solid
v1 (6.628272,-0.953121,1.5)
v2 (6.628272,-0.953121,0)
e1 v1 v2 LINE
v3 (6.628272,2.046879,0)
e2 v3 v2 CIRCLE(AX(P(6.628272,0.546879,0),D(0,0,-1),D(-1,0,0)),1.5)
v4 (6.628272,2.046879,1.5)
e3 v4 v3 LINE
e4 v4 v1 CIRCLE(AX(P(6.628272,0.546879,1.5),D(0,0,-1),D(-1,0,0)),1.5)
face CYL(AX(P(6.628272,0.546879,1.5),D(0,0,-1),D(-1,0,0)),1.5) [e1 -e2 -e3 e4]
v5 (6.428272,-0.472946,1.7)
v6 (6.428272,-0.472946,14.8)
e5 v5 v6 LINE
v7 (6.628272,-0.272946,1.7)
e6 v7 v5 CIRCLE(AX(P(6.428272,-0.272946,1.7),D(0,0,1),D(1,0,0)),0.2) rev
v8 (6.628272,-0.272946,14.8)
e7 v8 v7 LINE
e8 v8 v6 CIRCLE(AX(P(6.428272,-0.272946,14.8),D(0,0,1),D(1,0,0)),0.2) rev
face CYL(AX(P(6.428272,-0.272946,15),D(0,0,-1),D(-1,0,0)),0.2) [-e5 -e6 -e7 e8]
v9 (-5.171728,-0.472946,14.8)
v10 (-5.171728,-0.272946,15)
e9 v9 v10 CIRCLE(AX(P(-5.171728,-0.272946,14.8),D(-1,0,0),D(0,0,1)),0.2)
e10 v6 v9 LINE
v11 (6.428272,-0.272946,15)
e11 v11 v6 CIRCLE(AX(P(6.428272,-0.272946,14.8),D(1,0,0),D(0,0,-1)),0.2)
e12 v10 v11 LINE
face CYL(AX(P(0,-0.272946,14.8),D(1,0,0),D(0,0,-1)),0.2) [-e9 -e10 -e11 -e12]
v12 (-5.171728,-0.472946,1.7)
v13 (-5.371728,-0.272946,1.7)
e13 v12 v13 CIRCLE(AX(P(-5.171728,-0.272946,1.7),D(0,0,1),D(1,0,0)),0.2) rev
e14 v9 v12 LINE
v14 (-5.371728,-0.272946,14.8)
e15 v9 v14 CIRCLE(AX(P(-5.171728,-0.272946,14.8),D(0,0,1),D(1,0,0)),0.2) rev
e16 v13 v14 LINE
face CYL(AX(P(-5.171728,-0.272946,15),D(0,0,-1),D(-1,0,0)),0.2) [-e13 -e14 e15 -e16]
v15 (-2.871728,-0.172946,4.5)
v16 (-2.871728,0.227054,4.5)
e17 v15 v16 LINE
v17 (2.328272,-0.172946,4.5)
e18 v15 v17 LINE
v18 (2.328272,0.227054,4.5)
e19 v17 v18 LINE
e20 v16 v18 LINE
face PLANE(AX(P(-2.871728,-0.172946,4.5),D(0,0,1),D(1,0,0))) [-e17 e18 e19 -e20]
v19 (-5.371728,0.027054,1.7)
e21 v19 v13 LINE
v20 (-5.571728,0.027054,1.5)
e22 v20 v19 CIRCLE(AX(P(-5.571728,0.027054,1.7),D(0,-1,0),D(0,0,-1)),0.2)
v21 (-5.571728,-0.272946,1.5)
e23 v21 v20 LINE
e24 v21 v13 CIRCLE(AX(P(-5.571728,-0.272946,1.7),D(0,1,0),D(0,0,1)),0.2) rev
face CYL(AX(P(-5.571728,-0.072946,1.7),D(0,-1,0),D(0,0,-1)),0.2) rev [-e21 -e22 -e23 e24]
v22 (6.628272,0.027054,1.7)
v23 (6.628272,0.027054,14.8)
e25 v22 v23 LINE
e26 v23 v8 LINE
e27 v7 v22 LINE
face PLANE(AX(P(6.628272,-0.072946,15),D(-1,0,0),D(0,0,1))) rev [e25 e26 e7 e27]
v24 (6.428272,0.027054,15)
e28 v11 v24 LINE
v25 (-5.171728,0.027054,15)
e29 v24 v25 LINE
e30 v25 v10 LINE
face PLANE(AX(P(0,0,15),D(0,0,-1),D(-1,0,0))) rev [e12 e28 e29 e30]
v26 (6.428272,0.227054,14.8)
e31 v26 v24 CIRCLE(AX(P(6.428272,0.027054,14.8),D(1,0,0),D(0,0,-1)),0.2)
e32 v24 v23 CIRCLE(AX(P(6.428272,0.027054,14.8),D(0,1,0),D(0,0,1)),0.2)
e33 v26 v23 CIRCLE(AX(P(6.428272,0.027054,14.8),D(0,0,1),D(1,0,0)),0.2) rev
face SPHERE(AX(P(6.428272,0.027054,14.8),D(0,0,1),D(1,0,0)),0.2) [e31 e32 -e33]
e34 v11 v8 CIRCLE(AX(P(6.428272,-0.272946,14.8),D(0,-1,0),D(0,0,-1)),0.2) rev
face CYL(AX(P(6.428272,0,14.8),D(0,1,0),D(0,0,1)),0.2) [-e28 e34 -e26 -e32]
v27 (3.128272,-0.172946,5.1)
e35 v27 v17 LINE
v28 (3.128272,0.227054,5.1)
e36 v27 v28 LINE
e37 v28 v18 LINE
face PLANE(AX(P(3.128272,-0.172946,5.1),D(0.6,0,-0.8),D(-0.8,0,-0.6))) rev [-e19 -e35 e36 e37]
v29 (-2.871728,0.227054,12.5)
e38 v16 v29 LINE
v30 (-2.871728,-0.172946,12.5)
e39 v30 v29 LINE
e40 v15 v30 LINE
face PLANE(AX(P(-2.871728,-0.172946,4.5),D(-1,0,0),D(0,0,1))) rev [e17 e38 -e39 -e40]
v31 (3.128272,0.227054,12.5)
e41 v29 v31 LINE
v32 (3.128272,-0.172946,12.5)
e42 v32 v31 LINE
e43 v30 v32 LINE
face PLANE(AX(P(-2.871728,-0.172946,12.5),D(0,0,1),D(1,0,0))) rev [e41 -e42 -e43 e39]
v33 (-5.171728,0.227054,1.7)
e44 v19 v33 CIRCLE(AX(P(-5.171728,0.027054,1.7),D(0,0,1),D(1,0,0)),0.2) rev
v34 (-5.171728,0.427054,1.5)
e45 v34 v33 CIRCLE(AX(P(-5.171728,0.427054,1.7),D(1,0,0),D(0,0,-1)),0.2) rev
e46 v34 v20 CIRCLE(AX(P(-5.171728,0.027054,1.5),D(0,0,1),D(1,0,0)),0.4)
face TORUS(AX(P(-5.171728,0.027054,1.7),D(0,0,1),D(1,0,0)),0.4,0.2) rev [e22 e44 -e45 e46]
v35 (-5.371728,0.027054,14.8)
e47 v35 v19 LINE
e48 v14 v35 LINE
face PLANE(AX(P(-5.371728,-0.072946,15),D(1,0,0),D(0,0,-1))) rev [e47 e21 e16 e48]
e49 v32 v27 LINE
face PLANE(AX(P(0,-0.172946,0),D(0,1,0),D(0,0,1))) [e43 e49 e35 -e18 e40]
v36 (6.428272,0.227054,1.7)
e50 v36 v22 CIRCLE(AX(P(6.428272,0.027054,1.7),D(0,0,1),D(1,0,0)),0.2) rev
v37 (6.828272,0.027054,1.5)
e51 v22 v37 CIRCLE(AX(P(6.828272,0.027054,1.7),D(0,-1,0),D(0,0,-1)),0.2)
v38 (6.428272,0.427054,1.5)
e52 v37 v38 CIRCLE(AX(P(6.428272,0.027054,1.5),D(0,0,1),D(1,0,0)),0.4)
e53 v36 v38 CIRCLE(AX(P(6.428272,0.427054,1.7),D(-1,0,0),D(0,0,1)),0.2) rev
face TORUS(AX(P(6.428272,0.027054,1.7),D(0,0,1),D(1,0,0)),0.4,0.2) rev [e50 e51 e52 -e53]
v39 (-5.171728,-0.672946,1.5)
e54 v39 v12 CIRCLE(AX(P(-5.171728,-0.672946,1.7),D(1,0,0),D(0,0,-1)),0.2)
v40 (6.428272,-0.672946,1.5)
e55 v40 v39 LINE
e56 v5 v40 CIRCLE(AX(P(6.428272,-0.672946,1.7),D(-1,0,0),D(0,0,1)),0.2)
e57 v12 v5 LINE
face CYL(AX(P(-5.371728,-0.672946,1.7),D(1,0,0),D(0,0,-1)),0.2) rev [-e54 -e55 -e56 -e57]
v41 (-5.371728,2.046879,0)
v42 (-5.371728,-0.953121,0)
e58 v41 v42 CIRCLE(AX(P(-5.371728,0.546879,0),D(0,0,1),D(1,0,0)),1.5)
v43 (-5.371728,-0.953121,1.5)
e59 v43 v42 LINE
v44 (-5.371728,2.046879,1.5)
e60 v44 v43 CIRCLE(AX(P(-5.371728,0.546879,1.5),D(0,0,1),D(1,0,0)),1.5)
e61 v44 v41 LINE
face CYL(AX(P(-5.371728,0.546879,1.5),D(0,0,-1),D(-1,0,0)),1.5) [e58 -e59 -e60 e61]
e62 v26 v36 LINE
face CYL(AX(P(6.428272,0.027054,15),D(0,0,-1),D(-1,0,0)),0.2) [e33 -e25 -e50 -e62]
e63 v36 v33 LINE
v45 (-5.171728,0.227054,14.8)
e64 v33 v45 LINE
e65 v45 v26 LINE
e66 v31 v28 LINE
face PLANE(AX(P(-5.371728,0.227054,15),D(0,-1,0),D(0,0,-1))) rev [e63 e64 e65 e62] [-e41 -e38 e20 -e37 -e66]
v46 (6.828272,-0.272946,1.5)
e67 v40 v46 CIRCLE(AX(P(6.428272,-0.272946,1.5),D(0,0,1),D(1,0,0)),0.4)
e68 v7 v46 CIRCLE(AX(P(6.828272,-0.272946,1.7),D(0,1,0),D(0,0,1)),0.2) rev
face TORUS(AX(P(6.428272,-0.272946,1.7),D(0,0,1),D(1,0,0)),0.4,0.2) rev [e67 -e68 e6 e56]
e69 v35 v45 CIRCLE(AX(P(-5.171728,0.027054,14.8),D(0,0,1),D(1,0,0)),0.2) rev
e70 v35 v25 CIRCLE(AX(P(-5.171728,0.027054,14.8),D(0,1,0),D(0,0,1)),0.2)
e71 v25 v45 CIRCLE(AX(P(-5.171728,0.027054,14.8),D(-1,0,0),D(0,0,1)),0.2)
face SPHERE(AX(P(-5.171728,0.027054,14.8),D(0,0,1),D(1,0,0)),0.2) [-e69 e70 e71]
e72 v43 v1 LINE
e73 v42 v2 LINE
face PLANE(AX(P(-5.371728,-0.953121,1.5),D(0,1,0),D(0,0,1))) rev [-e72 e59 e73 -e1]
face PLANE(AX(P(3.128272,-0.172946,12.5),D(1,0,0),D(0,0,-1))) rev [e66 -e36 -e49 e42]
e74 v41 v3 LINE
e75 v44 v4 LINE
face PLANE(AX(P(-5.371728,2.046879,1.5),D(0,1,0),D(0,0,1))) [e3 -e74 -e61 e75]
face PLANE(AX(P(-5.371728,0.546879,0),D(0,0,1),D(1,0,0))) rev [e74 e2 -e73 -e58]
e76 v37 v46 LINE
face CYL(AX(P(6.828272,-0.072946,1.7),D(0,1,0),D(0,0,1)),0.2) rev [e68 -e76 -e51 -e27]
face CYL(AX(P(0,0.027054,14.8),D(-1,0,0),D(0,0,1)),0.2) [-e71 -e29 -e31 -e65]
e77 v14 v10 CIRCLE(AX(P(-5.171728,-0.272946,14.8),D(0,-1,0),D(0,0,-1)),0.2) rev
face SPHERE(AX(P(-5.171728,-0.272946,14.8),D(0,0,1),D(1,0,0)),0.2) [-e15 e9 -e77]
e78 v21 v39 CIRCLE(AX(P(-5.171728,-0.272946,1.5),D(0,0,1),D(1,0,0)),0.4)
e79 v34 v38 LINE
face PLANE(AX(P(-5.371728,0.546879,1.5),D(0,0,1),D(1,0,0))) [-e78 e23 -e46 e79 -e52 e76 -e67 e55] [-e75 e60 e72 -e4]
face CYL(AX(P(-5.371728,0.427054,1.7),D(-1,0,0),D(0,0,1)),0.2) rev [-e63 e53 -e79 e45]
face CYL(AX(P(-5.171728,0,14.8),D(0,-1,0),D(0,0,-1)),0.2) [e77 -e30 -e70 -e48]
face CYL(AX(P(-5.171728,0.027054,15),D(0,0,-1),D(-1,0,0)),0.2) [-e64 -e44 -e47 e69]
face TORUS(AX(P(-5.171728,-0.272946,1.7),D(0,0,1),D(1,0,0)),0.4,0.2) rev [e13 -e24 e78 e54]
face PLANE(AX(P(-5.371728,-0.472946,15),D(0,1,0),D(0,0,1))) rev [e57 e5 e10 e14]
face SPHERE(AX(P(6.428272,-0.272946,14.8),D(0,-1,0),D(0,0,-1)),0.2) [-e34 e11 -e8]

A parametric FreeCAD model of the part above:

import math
import FreeCAD as App
import Part
import Sketcher
from FreeCAD import Vector
Q = App.Units.Quantity


def edges_at(feature, points):
    """Names of the edges that pass closest to the given points."""
    edges = feature.Shape.Edges
    near = lambda p: min(range(len(edges)), key=lambda i: edges[i].distToShape(Part.Vertex(*p))[0])
    return sorted({f"Edge{near(p) + 1}" for p in points})

doc = App.newDocument("Part")
body = doc.addObject("PartDesign::Body", "Body")

# Sketch on XY plane
sketch1 = body.newObject("Sketcher::SketchObject", "Sketch")
sketch1.AttachmentSupport = (doc.getObject("XY_Plane"), [""])
sketch1.MapMode = "FlatFace"
sketch1.addGeometry(Part.LineSegment(Vector(6.628272, 2.046879, 0), Vector(-5.371728, 2.046879, 0)), False)
sketch1.addGeometry(Part.ArcOfCircle(Part.Circle(Vector(-5.371728, 0.546879, 0), Vector(0, 0, 1), 1.5), math.radians(90), math.radians(270)), False)
sketch1.addGeometry(Part.LineSegment(Vector(-5.371728, -0.953121, 0), Vector(6.628272, -0.953121, 0)), False)
sketch1.addGeometry(Part.ArcOfCircle(Part.Circle(Vector(6.628272, 0.546879, 0), Vector(0, 0, 1), 1.5), math.radians(-90), math.radians(90)), False)
sketch1.addConstraint(Sketcher.Constraint("Tangent", 0, 2, 1, 1))
sketch1.addConstraint(Sketcher.Constraint("Tangent", 1, 2, 2, 1))
sketch1.addConstraint(Sketcher.Constraint("Tangent", 2, 2, 3, 1))
sketch1.addConstraint(Sketcher.Constraint("Tangent", 3, 2, 0, 1))
sketch1.addConstraint(Sketcher.Constraint("Horizontal", 0))
sketch1.addConstraint(Sketcher.Constraint("Horizontal", 2))
sketch1.addConstraint(Sketcher.Constraint("Radius", 1, Q("1.5 mm")))
sketch1.addConstraint(Sketcher.Constraint("DistanceX", 0, 2, 0, 1, Q("12 mm")))
sketch1.addConstraint(Sketcher.Constraint("DistanceY", -1, 1, 1, 3, Q("0.546879 mm")))
sketch1.addConstraint(Sketcher.Constraint("DistanceX", 1, 3, -1, 1, Q("5.371728 mm")))
pad1 = body.newObject("PartDesign::Pad", "Pad")
pad1.Profile = sketch1
pad1.Length = 1.5

# Sketch on XY plane
sketch2 = body.newObject("Sketcher::SketchObject", "Sketch001")
sketch2.AttachmentSupport = (doc.getObject("XY_Plane"), [""])
sketch2.MapMode = "FlatFace"
sketch2.AttachmentOffset = App.Placement(Vector(0, 0, 1.5), App.Rotation())
sketch2.addGeometry(Part.LineSegment(Vector(-5.371728, 0.227054, 0), Vector(-5.371728, -0.472946, 0)), False)
sketch2.addGeometry(Part.LineSegment(Vector(-5.371728, -0.472946, 0), Vector(6.628272, -0.472946, 0)), False)
sketch2.addGeometry(Part.LineSegment(Vector(6.628272, -0.472946, 0), Vector(6.628272, 0.227054, 0)), False)
sketch2.addGeometry(Part.LineSegment(Vector(6.628272, 0.227054, 0), Vector(-5.371728, 0.227054, 0)), False)
sketch2.addConstraint(Sketcher.Constraint("Coincident", 0, 2, 1, 1))
sketch2.addConstraint(Sketcher.Constraint("Coincident", 1, 2, 2, 1))
sketch2.addConstraint(Sketcher.Constraint("Coincident", 2, 2, 3, 1))
sketch2.addConstraint(Sketcher.Constraint("Coincident", 3, 2, 0, 1))
sketch2.addConstraint(Sketcher.Constraint("Vertical", 0))
sketch2.addConstraint(Sketcher.Constraint("Horizontal", 1))
sketch2.addConstraint(Sketcher.Constraint("Vertical", 2))
sketch2.addConstraint(Sketcher.Constraint("Horizontal", 3))
sketch2.addConstraint(Sketcher.Constraint("DistanceX", 1, 1, 1, 2, Q("12 mm")))
sketch2.addConstraint(Sketcher.Constraint("DistanceY", 0, 2, 0, 1, Q("0.7 mm")))
sketch2.addConstraint(Sketcher.Constraint("DistanceX", 0, 2, -1, 1, Q("5.371728 mm")))
sketch2.addConstraint(Sketcher.Constraint("DistanceY", 0, 2, -1, 1, Q("0.472946 mm")))
pad2 = body.newObject("PartDesign::Pad", "Pad001")
pad2.Profile = sketch2
pad2.Length = 13.5

# Sketch on XZ plane
sketch3 = body.newObject("Sketcher::SketchObject", "Sketch002")
sketch3.AttachmentSupport = (doc.getObject("XZ_Plane"), [""])
sketch3.MapMode = "FlatFace"
sketch3.AttachmentOffset = App.Placement(Vector(0, 0, -0.227054), App.Rotation())
sketch3.addGeometry(Part.LineSegment(Vector(-2.871728, 4.5, 0), Vector(-2.871728, 12.5, 0)), False)
sketch3.addGeometry(Part.LineSegment(Vector(-2.871728, 12.5, 0), Vector(3.128272, 12.5, 0)), False)
sketch3.addGeometry(Part.LineSegment(Vector(3.128272, 12.5, 0), Vector(3.128272, 5.1, 0)), False)
sketch3.addGeometry(Part.LineSegment(Vector(3.128272, 5.1, 0), Vector(1.784565, 4.5, 0)), False)
sketch3.addGeometry(Part.LineSegment(Vector(1.784565, 4.5, 0), Vector(-2.871728, 4.5, 0)), False)
sketch3.addConstraint(Sketcher.Constraint("Coincident", 0, 2, 1, 1))
sketch3.addConstraint(Sketcher.Constraint("Coincident", 1, 2, 2, 1))
sketch3.addConstraint(Sketcher.Constraint("Coincident", 2, 2, 3, 1))
sketch3.addConstraint(Sketcher.Constraint("Coincident", 3, 2, 4, 1))
sketch3.addConstraint(Sketcher.Constraint("Coincident", 4, 2, 0, 1))
sketch3.addConstraint(Sketcher.Constraint("Vertical", 0))
sketch3.addConstraint(Sketcher.Constraint("Horizontal", 1))
sketch3.addConstraint(Sketcher.Constraint("Vertical", 2))
sketch3.addConstraint(Sketcher.Constraint("Horizontal", 4))
sketch3.addConstraint(Sketcher.Constraint("DistanceX", 1, 1, 1, 2, Q("6 mm")))
sketch3.addConstraint(Sketcher.Constraint("DistanceY", 0, 1, 0, 2, Q("8 mm")))
sketch3.addConstraint(Sketcher.Constraint("DistanceY", 2, 2, 2, 1, Q("7.4 mm")))
sketch3.addConstraint(Sketcher.Constraint("DistanceY", -1, 1, 0, 2, Q("12.5 mm")))
sketch3.addConstraint(Sketcher.Constraint("Distance", 3, Q("1.47158 mm")))
sketch3.addConstraint(Sketcher.Constraint("DistanceX", 0, 2, -1, 1, Q("2.871728 mm")))
pocket1 = body.newObject("PartDesign::Pocket", "Pocket")
pocket1.Profile = sketch3
pocket1.Length = 0.4
pocket1.Reversed = True
doc.recompute()

fillet = body.newObject("PartDesign::Fillet", "Fillet")
fillet.Base = (pocket1, edges_at(pocket1, [
    (0.628, 0.227, 1.5),
    (6.628, 0.227, 8.25),
    (-5.372, -0.123, 1.5),
    (-5.372, 0.227, 8.25),
    (0.628, -0.473, 1.5),
    (-5.372, -0.473, 8.25),
    (6.628, -0.123, 1.5),
    (6.628, -0.473, 8.25),
    (6.628, -0.123, 15),
    (0.628, 0.227, 15),
    (-5.372, -0.123, 15),
    (0.628, -0.473, 15),
]))
fillet.Radius = 0.2

# Sketch on XZ plane
sketch4 = body.newObject("Sketcher::SketchObject", "Sketch003")
sketch4.AttachmentSupport = (doc.getObject("XZ_Plane"), [""])
sketch4.MapMode = "FlatFace"
sketch4.AttachmentOffset = App.Placement(Vector(0, 0, -0.227054), App.Rotation())
sketch4.addGeometry(Part.LineSegment(Vector(-2.871728, 4.5, 0), Vector(-2.871728, 12.5, 0)), False)
sketch4.addGeometry(Part.LineSegment(Vector(-2.871728, 12.5, 0), Vector(3.128272, 12.5, 0)), False)
sketch4.addGeometry(Part.LineSegment(Vector(3.128272, 12.5, 0), Vector(3.128272, 5.1, 0)), False)
sketch4.addGeometry(Part.LineSegment(Vector(3.128272, 5.1, 0), Vector(2.328272, 4.5, 0)), False)
sketch4.addGeometry(Part.LineSegment(Vector(2.328272, 4.5, 0), Vector(-2.871728, 4.5, 0)), False)
sketch4.addConstraint(Sketcher.Constraint("Coincident", 0, 2, 1, 1))
sketch4.addConstraint(Sketcher.Constraint("Coincident", 1, 2, 2, 1))
sketch4.addConstraint(Sketcher.Constraint("Coincident", 2, 2, 3, 1))
sketch4.addConstraint(Sketcher.Constraint("Coincident", 3, 2, 4, 1))
sketch4.addConstraint(Sketcher.Constraint("Coincident", 4, 2, 0, 1))
sketch4.addConstraint(Sketcher.Constraint("Vertical", 0))
sketch4.addConstraint(Sketcher.Constraint("Horizontal", 1))
sketch4.addConstraint(Sketcher.Constraint("Vertical", 2))
sketch4.addConstraint(Sketcher.Constraint("Horizontal", 4))
sketch4.addConstraint(Sketcher.Constraint("DistanceX", 1, 1, 1, 2, Q("6 mm")))
sketch4.addConstraint(Sketcher.Constraint("DistanceY", 0, 1, 0, 2, Q("8 mm")))
sketch4.addConstraint(Sketcher.Constraint("Distance", 3, Q("1 mm")))
sketch4.addConstraint(Sketcher.Constraint("DistanceX", 4, 2, 4, 1, Q("5.2 mm")))
sketch4.addConstraint(Sketcher.Constraint("DistanceY", -1, 1, 0, 2, Q("12.5 mm")))
sketch4.addConstraint(Sketcher.Constraint("DistanceX", 0, 2, -1, 1, Q("2.871728 mm")))
pocket2 = body.newObject("PartDesign::Pocket", "Pocket001")
pocket2.Profile = sketch4
pocket2.Length = 0.4
pocket2.Reversed = True

doc.recompute()
